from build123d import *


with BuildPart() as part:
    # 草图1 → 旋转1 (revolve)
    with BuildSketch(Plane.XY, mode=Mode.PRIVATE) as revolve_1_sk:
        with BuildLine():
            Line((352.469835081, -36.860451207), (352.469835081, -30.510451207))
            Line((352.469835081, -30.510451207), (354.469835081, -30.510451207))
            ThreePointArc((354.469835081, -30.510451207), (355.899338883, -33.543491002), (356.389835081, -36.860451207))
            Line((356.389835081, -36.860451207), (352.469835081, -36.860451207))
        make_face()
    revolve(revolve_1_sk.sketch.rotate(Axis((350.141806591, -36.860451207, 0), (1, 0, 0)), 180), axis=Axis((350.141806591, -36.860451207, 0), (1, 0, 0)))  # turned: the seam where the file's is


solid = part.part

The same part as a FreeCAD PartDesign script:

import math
import FreeCAD as App
import Part
import Sketcher
Q = App.Units.Quantity

doc = App.newDocument("Part")
body = doc.addObject("PartDesign::Body", "Body")

sketch1 = body.newObject("Sketcher::SketchObject", "Sketch")
sketch1.AttachmentSupport = (doc.getObject("XY_Plane"), [""])
sketch1.MapMode = "FlatFace"
sketch1.addGeometry([
    Part.LineSegment(App.Vector(352.5, -30.5, 0), App.Vector(352.5, -36.9, 0)),
    Part.LineSegment(App.Vector(352.5, -36.9, 0), App.Vector(356.4, -36.9, 0)),
    Part.ArcOfCircle(Part.Circle(App.Vector(344.9, -36.9, 0), App.Vector(0, 0, 1), 11.5), math.radians(0), math.radians(34)),
    Part.LineSegment(App.Vector(354.5, -30.5, 0), App.Vector(352.5, -30.5, 0)),
], False)
sketch1.addGeometry(Part.LineSegment(App.Vector(344.9, -36.9, 0), App.Vector(356.4, -36.9, 0)), True)
sketch1.addConstraint([
    Sketcher.Constraint("Coincident", 0, 2, 1, 1),
    Sketcher.Constraint("Coincident", 1, 2, 2, 1),
    Sketcher.Constraint("Coincident", 2, 2, 3, 1),
    Sketcher.Constraint("Coincident", 3, 2, 0, 1),
    Sketcher.Constraint("Vertical", 0),
    Sketcher.Constraint("Horizontal", 1),
    Sketcher.Constraint("Horizontal", 3),
    Sketcher.Constraint("Horizontal", 4),
    Sketcher.Constraint("Coincident", 4, 1, 2, 3),
    Sketcher.Constraint("Coincident", 4, 2, 1, 2),
    Sketcher.Constraint("DistanceX", 3, 2, 3, 1, Q("2 mm")),
    Sketcher.Constraint("DistanceX", 1, 1, 1, 2, Q("3.92 mm")),
    Sketcher.Constraint("DistanceY", 0, 2, 0, 1, Q("6.35 mm")),
    Sketcher.Constraint("DistanceY", 2, 3, -1, 1, Q("36.860451 mm")),
    Sketcher.Constraint("DistanceX", -1, 1, 2, 3, Q("344.929184 mm")),
])
revolution = body.newObject("PartDesign::Revolution", "Revolution")
revolution.Profile = sketch1
revolution.ReferenceAxis = (sketch1, ["Axis0"])
revolution.Angle = 360

doc.recompute()
